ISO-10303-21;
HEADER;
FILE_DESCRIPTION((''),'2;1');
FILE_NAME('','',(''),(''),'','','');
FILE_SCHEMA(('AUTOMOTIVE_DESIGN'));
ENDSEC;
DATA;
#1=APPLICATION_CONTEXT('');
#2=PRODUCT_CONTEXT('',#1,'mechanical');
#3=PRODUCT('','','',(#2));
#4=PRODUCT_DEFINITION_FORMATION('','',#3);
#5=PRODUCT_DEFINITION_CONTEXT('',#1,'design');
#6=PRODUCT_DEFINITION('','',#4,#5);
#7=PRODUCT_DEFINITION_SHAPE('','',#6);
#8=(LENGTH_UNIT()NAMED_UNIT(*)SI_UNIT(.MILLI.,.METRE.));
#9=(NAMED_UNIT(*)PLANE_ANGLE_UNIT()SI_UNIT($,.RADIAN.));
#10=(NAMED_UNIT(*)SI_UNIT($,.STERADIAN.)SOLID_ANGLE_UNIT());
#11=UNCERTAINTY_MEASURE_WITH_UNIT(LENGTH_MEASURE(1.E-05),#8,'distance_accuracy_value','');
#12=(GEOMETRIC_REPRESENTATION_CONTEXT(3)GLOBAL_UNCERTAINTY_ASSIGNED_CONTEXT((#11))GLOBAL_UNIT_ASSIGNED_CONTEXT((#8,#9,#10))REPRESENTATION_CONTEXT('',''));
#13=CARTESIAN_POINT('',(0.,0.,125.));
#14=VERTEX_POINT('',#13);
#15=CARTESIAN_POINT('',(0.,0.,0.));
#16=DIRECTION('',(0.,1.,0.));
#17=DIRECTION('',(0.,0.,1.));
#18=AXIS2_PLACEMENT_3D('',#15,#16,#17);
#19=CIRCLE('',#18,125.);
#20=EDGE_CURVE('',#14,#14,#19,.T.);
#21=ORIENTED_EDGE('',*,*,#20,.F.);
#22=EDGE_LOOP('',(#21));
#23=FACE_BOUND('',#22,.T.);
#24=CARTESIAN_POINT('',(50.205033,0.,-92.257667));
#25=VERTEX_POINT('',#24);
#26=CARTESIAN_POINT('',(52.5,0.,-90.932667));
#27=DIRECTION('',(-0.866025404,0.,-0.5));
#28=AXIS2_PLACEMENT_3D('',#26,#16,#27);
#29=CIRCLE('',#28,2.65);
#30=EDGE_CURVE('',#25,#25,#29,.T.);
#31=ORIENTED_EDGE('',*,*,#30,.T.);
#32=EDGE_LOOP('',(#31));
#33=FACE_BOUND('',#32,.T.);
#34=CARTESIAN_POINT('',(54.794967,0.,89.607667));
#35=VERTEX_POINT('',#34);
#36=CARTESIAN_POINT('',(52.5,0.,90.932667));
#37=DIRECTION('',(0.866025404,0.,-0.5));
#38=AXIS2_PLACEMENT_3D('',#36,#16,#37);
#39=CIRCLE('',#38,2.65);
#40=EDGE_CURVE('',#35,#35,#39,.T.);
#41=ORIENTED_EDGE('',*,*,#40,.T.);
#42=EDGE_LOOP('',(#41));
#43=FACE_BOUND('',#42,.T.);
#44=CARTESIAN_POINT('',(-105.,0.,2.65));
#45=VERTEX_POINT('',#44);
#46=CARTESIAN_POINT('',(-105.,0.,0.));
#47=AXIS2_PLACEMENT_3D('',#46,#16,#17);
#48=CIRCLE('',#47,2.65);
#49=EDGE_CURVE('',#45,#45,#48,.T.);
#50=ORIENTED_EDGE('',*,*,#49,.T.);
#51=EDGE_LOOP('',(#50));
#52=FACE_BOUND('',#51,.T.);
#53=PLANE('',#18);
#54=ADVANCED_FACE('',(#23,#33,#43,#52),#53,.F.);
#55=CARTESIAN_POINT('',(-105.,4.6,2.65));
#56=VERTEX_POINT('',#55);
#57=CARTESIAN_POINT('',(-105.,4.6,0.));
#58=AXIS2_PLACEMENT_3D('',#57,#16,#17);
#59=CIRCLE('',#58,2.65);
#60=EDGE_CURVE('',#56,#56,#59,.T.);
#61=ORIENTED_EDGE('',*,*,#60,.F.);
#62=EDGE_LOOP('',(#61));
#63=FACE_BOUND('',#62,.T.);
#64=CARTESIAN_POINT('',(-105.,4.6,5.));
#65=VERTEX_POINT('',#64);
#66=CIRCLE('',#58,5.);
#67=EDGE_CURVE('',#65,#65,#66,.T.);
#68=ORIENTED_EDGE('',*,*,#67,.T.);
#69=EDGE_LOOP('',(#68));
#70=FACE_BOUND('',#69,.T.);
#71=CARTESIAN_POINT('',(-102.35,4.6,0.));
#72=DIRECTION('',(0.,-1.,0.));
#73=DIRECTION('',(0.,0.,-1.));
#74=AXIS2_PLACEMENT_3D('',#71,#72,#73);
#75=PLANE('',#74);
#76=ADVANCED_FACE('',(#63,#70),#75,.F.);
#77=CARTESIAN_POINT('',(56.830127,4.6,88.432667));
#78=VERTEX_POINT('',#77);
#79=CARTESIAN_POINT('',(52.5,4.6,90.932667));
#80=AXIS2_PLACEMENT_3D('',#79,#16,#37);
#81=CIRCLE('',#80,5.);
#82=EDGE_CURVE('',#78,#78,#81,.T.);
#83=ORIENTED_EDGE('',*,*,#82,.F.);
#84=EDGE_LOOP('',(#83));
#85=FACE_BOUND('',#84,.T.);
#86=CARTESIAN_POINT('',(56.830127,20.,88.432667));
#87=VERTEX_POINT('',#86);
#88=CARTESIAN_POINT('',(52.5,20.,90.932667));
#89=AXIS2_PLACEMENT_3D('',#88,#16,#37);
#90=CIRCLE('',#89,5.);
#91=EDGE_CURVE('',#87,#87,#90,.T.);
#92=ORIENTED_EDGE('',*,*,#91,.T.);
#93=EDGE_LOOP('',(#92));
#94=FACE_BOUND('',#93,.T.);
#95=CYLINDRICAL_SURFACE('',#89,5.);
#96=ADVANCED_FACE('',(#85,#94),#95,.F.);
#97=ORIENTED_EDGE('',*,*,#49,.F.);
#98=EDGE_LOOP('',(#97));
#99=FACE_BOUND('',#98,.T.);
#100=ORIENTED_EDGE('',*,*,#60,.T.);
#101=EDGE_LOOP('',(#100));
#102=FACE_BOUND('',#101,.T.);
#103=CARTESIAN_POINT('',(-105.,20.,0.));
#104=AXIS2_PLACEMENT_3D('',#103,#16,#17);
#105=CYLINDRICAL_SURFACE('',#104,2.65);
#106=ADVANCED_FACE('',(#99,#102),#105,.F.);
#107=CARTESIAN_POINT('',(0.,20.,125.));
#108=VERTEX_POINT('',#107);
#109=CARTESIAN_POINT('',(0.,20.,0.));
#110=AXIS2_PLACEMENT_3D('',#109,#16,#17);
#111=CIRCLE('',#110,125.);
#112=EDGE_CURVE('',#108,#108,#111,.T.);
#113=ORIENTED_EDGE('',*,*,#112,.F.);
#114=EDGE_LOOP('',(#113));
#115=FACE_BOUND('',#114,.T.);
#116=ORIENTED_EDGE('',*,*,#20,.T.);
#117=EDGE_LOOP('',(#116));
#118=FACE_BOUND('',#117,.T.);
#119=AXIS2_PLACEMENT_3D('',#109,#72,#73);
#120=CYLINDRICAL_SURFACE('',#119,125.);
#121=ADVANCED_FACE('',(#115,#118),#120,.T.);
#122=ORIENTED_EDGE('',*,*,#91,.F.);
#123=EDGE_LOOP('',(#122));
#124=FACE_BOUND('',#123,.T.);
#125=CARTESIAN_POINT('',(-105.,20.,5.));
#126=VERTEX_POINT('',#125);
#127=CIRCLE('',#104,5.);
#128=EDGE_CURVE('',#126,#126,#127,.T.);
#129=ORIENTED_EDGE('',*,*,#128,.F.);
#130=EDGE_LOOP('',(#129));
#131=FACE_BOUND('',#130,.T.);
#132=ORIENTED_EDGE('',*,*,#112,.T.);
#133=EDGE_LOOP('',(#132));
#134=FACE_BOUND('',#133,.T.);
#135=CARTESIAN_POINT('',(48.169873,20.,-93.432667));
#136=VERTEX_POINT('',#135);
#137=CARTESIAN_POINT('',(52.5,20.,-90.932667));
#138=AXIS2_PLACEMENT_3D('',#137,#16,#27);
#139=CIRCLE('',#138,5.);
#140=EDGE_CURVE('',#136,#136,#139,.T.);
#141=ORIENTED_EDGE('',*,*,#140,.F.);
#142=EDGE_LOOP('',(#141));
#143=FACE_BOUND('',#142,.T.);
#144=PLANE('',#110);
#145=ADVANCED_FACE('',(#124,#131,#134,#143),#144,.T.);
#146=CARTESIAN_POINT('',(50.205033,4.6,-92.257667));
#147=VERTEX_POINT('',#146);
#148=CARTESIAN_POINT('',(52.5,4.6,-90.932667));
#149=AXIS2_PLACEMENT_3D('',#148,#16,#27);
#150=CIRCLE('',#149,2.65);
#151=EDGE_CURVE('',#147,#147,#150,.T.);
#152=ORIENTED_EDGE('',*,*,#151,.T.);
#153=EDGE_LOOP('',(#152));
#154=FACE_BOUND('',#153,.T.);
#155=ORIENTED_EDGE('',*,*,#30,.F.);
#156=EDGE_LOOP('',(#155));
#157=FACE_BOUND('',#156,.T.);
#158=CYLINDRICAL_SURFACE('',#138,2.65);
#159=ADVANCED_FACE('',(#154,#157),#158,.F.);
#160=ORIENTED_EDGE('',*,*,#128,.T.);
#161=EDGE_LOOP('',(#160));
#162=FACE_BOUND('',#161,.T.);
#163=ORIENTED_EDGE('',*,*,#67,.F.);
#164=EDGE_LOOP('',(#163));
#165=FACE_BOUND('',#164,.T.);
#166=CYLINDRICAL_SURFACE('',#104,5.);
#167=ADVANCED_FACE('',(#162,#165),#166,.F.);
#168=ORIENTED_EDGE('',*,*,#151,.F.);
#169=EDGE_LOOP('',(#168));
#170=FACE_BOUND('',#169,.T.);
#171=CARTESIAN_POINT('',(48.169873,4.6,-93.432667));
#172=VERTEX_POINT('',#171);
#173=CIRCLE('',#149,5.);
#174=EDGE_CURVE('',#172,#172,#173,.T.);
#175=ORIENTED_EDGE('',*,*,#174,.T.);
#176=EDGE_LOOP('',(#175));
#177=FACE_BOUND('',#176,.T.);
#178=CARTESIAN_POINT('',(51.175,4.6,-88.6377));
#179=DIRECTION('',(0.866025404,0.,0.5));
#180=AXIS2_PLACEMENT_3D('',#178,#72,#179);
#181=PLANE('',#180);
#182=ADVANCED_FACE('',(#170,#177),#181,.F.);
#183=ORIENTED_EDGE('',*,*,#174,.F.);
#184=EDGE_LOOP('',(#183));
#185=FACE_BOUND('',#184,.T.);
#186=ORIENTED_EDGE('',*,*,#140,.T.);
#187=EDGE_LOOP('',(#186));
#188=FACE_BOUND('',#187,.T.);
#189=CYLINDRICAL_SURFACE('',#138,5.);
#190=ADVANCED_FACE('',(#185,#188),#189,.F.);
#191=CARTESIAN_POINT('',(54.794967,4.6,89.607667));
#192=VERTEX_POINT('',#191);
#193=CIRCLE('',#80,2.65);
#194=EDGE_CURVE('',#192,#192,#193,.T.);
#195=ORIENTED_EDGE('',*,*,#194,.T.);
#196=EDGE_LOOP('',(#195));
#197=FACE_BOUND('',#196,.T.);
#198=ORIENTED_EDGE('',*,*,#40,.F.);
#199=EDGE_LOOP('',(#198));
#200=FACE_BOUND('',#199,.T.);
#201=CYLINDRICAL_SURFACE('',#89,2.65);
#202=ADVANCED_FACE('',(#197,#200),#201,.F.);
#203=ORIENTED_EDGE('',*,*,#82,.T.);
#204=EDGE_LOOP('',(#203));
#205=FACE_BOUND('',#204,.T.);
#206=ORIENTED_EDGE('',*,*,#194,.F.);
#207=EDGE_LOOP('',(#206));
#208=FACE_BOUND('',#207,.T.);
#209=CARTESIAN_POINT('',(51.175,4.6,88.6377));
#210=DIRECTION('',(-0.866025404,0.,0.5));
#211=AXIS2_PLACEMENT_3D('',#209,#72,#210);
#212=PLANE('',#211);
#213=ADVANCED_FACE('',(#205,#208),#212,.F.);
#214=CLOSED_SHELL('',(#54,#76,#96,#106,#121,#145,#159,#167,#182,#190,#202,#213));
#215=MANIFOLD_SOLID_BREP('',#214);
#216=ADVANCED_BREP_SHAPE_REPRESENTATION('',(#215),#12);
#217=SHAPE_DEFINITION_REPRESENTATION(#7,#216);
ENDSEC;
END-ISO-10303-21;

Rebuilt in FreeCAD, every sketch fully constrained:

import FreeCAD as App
import Part
import Sketcher

doc = App.newDocument("Part")
params = doc.addObject("Spreadsheet::Sheet", "Params")
for row, (alias, value) in enumerate([
    ("sketch1_diameter", "250 mm"),
    ("pad1_length", "20 mm"),
    ("sketch2_diameter", "5.3 mm"),
    ("hole_diameter", "5.3 mm"),
    ("hole_cbore_diameter", "10 mm"),
    ("hole_cbore_depth", "15.4 mm"),
], start=1):
    params.set(f"A{row}", alias)
    params.set(f"B{row}", "=" + value)
    params.setAlias(f"B{row}", alias)

body = doc.addObject("PartDesign::Body", "Body")

sketch1 = doc.addObject("Sketcher::SketchObject", "Sketch")
body.addObject(sketch1)
sketch1.AttachmentSupport = (doc.XZ_Plane, [""])
sketch1.MapMode = "FlatFace"
sketch1.addGeometry(Part.Circle(App.Vector(0, 0, 0), App.Vector(0, 0, 1), 125), False)
sketch1.addConstraint(Sketcher.Constraint("Coincident", 0, 3, -1, 1))
sketch1.addConstraint(Sketcher.Constraint("Diameter", 0, 250.0))
sketch1.setExpression("Constraints[1]", "Params.sketch1_diameter")
pad1 = doc.addObject("PartDesign::Pad", "Pad")
body.addObject(pad1)
pad1.Profile = sketch1
pad1.setExpression("Length", "Params.pad1_length")
pad1.Reversed = True

sketch2 = doc.addObject("Sketcher::SketchObject", "Sketch001")
body.addObject(sketch2)
sketch2.AttachmentSupport = (doc.XZ_Plane, [""])
sketch2.MapMode = "FlatFace"
sketch2.AttachmentOffset = App.Placement(App.Vector(0, 0, -20), App.Rotation())
sketch2.addGeometry(Part.Circle(App.Vector(-105, 0, 0), App.Vector(0, 0, 1), 2.6), False)
sketch2.addConstraint(Sketcher.Constraint("PointOnObject", 0, 3, -1))
sketch2.addConstraint(Sketcher.Constraint("Diameter", 0, 5.3))
sketch2.addConstraint(Sketcher.Constraint("DistanceX", 0, 3, -1, 1, 105.0))
sketch2.setExpression("Constraints[1]", "Params.sketch2_diameter")
doc.recompute()
hole = doc.addObject("PartDesign::Hole", "Hole")
body.addObject(hole)
hole.Profile = sketch2
hole.ThreadType = "None"
hole.setExpression("Diameter", "Params.hole_diameter")
hole.DepthType = "ThroughAll"
hole.HoleCutType = "Counterbore"
hole.setExpression("HoleCutDiameter", "Params.hole_cbore_diameter")
hole.setExpression("HoleCutDepth", "Params.hole_cbore_depth")
hole.Reversed = True
doc.recompute()

polarpattern = doc.addObject("PartDesign::PolarPattern", "PolarPattern")
body.addObject(polarpattern)
polarpattern.Originals = [hole]
polarpattern.Axis = (doc.Y_Axis, [""])
polarpattern.Angle = 360
polarpattern.Occurrences = 3
body.Tip = polarpattern

doc.recompute()
